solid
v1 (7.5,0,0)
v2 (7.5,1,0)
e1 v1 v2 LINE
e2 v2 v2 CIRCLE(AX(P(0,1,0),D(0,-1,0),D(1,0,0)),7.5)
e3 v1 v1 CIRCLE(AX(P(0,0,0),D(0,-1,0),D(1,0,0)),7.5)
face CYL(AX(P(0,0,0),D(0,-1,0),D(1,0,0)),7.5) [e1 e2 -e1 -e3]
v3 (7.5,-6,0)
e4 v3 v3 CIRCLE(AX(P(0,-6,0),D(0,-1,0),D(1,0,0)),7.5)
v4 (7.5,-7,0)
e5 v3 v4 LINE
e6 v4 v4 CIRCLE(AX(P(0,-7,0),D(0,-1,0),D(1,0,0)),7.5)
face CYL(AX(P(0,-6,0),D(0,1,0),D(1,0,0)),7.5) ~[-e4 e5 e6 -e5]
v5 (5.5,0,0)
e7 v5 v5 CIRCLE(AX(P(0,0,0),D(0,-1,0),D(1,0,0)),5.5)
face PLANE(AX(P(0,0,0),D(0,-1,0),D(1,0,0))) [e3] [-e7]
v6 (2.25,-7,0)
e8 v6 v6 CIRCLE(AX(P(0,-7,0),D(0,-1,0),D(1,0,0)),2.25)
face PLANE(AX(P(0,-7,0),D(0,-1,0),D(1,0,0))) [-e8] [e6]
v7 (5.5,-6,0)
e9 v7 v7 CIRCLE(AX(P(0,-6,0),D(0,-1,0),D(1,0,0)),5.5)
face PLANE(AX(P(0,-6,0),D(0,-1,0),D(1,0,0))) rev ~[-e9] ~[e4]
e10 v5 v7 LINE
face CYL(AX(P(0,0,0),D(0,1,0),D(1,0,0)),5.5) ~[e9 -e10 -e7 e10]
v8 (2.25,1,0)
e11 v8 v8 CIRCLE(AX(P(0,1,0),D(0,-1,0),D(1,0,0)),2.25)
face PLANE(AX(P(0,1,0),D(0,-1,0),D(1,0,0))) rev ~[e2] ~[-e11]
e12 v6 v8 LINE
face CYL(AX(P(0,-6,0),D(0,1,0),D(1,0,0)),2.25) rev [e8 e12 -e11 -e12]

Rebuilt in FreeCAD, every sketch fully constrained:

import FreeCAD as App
import Part
import Sketcher

V = App.Vector
Q = App.Units.Quantity

doc = App.newDocument("Part")
body = doc.addObject("PartDesign::Body", "Body")

# Sketch on XZ plane
sketch1 = doc.addObject("Sketcher::SketchObject", "Sketch")
body.addObject(sketch1)
sketch1.AttachmentSupport = (doc.XZ_Plane, [""])
sketch1.MapMode = "FlatFace"
sketch1.addGeometry([
    Part.Circle(V(0, 0, 0), V(0, 0, 1), 7.5),
    Part.Circle(V(0, 0, 0), V(0, 0, 1), 2.2),
], False)
sketch1.addConstraint([
    Sketcher.Constraint("Coincident", 0, 3, -1, 1),
    Sketcher.Constraint("Coincident", 1, 3, -1, 1),
    Sketcher.Constraint("Diameter", 0, Q("15 mm")),
    Sketcher.Constraint("Diameter", 1, Q("4.5 mm")),
])
pad1 = doc.addObject("PartDesign::Pad", "Pad")
body.addObject(pad1)
pad1.Profile = sketch1
pad1.Length = 1
pad1.Reversed = True

# Sketch on XZ plane
sketch2 = doc.addObject("Sketcher::SketchObject", "Sketch001")
body.addObject(sketch2)
sketch2.AttachmentSupport = (doc.XZ_Plane, [""])
sketch2.MapMode = "FlatFace"
sketch2.addGeometry([
    Part.Circle(V(0, 0, 0), V(0, 0, 1), 5.5),
    Part.Circle(V(0, 0, 0), V(0, 0, 1), 2.2),
], False)
sketch2.addConstraint([
    Sketcher.Constraint("Coincident", 0, 3, -1, 1),
    Sketcher.Constraint("Coincident", 1, 3, -1, 1),
    Sketcher.Constraint("Diameter", 0, Q("11 mm")),
    Sketcher.Constraint("Diameter", 1, Q("4.5 mm")),
])
pad2 = doc.addObject("PartDesign::Pad", "Pad001")
body.addObject(pad2)
pad2.Profile = sketch2
pad2.Length = 6

# Sketch on XZ plane
sketch3 = doc.addObject("Sketcher::SketchObject", "Sketch002")
body.addObject(sketch3)
sketch3.AttachmentSupport = (doc.XZ_Plane, [""])
sketch3.MapMode = "FlatFace"
sketch3.AttachmentOffset = App.Placement(V(0, 0, 6), App.Rotation())
sketch3.addGeometry([
    Part.Circle(V(0, 0, 0), V(0, 0, 1), 7.5),
    Part.Circle(V(0, 0, 0), V(0, 0, 1), 2.2),
], False)
sketch3.addConstraint([
    Sketcher.Constraint("Coincident", 0, 3, -1, 1),
    Sketcher.Constraint("Coincident", 1, 3, -1, 1),
    Sketcher.Constraint("Diameter", 0, Q("15 mm")),
    Sketcher.Constraint("Diameter", 1, Q("4.5 mm")),
])
pad3 = doc.addObject("PartDesign::Pad", "Pad002")
body.addObject(pad3)
pad3.Profile = sketch3
pad3.Length = 1

doc.recompute()
